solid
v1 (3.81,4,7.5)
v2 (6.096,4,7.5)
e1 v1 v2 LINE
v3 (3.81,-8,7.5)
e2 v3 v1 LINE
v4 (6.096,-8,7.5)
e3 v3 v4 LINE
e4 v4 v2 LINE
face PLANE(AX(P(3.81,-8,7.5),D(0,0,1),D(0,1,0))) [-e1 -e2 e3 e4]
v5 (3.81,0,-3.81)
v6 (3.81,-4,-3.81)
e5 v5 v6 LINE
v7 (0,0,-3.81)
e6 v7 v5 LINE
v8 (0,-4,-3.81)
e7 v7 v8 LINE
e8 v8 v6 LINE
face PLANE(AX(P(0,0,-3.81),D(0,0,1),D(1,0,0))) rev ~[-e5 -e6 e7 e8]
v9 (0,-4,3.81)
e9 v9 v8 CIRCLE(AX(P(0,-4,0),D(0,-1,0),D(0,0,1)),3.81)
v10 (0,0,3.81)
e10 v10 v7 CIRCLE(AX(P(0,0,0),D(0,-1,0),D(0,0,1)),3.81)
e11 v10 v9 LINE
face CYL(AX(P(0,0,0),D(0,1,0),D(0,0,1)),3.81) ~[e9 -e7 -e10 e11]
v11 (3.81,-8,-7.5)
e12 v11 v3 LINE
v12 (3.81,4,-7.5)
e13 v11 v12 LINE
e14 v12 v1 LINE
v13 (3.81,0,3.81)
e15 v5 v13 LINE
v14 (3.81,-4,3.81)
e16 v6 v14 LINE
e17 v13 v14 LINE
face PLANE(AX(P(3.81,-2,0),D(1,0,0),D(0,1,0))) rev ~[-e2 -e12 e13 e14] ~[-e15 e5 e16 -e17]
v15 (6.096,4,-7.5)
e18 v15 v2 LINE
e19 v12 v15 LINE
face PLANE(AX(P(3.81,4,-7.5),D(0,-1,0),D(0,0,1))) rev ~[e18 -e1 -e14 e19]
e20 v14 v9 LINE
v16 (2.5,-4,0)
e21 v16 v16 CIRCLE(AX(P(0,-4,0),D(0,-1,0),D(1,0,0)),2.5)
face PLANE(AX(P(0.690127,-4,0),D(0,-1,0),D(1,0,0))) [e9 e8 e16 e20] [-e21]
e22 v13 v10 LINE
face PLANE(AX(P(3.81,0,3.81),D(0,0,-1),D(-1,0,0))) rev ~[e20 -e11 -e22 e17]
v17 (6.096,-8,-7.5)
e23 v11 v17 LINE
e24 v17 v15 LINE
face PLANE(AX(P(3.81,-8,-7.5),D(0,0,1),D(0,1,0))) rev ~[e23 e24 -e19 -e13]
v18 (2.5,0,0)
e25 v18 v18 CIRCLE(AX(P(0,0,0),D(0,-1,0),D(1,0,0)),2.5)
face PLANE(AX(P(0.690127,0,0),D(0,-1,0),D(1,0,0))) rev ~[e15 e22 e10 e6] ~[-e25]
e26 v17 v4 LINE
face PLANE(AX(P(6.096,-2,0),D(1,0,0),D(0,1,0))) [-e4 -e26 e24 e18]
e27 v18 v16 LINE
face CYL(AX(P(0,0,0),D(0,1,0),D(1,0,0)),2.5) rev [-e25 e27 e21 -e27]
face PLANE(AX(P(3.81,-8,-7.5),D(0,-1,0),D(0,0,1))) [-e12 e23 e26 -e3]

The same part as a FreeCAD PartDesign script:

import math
import FreeCAD as App
import Part
import Sketcher
from FreeCAD import Vector
Q = App.Units.Quantity


def add_polygon(sketch, points):
    """Adds a closed chain of lines whose ends are joined by coincident constraints."""
    first, n = sketch.GeometryCount, len(points)
    for a, b in zip(points, points[1:] + points[:1]):
        sketch.addGeometry(Part.LineSegment(App.Vector(*a, 0), App.Vector(*b, 0)), False)
    for i in range(n):
        sketch.addConstraint(Sketcher.Constraint("Coincident", first + i, 2, first + (i + 1) % n, 1))

doc = App.newDocument("Part")
body = doc.addObject("PartDesign::Body", "Body")

sketch1 = body.newObject("Sketcher::SketchObject", "Sketch")
sketch1.AttachmentSupport = (doc.getObject("XZ_Plane"), [""])
sketch1.MapMode = "FlatFace"
sketch1.addGeometry(Part.LineSegment(Vector(3.8, 3.8, 0), Vector(0, 3.8, 0)), False)
sketch1.addGeometry(Part.ArcOfCircle(Part.Circle(Vector(0, 0, 0), Vector(0, 0, 1), 3.8), math.radians(90), math.radians(270)), False)
sketch1.addGeometry(Part.LineSegment(Vector(0, -3.8, 0), Vector(3.8, -3.8, 0)), False)
sketch1.addGeometry(Part.LineSegment(Vector(3.8, -3.8, 0), Vector(3.8, 3.8, 0)), False)
sketch1.addGeometry(Part.Circle(Vector(0, 0, 0), Vector(0, 0, 1), 2.5), False)
sketch1.addConstraint(Sketcher.Constraint("Tangent", 0, 2, 1, 1))
sketch1.addConstraint(Sketcher.Constraint("Tangent", 1, 2, 2, 1))
sketch1.addConstraint(Sketcher.Constraint("Coincident", 2, 2, 3, 1))
sketch1.addConstraint(Sketcher.Constraint("Coincident", 3, 2, 0, 1))
sketch1.addConstraint(Sketcher.Constraint("Horizontal", 0))
sketch1.addConstraint(Sketcher.Constraint("Horizontal", 2))
sketch1.addConstraint(Sketcher.Constraint("Vertical", 3))
sketch1.addConstraint(Sketcher.Constraint("Coincident", 1, 3, -1, 1))
sketch1.addConstraint(Sketcher.Constraint("Coincident", 4, 3, -1, 1))
sketch1.addConstraint(Sketcher.Constraint("Diameter", 4, Q("5 mm")))
sketch1.addConstraint(Sketcher.Constraint("Radius", 1, Q("3.81 mm")))
sketch1.addConstraint(Sketcher.Constraint("DistanceX", 0, 2, 0, 1, Q("3.81 mm")))
pad1 = body.newObject("PartDesign::Pad", "Pad")
pad1.Profile = sketch1
pad1.Length = 4

sketch2 = body.newObject("Sketcher::SketchObject", "Sketch001")
sketch2.AttachmentSupport = (doc.getObject("YZ_Plane"), [""])
sketch2.MapMode = "FlatFace"
sketch2.AttachmentOffset = App.Placement(Vector(0, 0, 3.81), App.Rotation())
add_polygon(sketch2, [(-8, 8), (-8, -8), (4, -8), (4, 8)])
sketch2.addConstraint(Sketcher.Constraint("Vertical", 0))
sketch2.addConstraint(Sketcher.Constraint("Horizontal", 1))
sketch2.addConstraint(Sketcher.Constraint("Vertical", 2))
sketch2.addConstraint(Sketcher.Constraint("Horizontal", 3))
sketch2.addConstraint(Sketcher.Constraint("DistanceX", 1, 1, 1, 2, Q("12 mm")))
sketch2.addConstraint(Sketcher.Constraint("DistanceY", 0, 2, 0, 1, Q("15 mm")))
sketch2.addConstraint(Sketcher.Constraint("DistanceX", 0, 2, -1, 1, Q("8 mm")))
sketch2.addConstraint(Sketcher.Constraint("DistanceY", 0, 2, -1, 1, Q("7.5 mm")))
pad2 = body.newObject("PartDesign::Pad", "Pad001")
pad2.Profile = sketch2
pad2.Length = 2.286

doc.recompute()
